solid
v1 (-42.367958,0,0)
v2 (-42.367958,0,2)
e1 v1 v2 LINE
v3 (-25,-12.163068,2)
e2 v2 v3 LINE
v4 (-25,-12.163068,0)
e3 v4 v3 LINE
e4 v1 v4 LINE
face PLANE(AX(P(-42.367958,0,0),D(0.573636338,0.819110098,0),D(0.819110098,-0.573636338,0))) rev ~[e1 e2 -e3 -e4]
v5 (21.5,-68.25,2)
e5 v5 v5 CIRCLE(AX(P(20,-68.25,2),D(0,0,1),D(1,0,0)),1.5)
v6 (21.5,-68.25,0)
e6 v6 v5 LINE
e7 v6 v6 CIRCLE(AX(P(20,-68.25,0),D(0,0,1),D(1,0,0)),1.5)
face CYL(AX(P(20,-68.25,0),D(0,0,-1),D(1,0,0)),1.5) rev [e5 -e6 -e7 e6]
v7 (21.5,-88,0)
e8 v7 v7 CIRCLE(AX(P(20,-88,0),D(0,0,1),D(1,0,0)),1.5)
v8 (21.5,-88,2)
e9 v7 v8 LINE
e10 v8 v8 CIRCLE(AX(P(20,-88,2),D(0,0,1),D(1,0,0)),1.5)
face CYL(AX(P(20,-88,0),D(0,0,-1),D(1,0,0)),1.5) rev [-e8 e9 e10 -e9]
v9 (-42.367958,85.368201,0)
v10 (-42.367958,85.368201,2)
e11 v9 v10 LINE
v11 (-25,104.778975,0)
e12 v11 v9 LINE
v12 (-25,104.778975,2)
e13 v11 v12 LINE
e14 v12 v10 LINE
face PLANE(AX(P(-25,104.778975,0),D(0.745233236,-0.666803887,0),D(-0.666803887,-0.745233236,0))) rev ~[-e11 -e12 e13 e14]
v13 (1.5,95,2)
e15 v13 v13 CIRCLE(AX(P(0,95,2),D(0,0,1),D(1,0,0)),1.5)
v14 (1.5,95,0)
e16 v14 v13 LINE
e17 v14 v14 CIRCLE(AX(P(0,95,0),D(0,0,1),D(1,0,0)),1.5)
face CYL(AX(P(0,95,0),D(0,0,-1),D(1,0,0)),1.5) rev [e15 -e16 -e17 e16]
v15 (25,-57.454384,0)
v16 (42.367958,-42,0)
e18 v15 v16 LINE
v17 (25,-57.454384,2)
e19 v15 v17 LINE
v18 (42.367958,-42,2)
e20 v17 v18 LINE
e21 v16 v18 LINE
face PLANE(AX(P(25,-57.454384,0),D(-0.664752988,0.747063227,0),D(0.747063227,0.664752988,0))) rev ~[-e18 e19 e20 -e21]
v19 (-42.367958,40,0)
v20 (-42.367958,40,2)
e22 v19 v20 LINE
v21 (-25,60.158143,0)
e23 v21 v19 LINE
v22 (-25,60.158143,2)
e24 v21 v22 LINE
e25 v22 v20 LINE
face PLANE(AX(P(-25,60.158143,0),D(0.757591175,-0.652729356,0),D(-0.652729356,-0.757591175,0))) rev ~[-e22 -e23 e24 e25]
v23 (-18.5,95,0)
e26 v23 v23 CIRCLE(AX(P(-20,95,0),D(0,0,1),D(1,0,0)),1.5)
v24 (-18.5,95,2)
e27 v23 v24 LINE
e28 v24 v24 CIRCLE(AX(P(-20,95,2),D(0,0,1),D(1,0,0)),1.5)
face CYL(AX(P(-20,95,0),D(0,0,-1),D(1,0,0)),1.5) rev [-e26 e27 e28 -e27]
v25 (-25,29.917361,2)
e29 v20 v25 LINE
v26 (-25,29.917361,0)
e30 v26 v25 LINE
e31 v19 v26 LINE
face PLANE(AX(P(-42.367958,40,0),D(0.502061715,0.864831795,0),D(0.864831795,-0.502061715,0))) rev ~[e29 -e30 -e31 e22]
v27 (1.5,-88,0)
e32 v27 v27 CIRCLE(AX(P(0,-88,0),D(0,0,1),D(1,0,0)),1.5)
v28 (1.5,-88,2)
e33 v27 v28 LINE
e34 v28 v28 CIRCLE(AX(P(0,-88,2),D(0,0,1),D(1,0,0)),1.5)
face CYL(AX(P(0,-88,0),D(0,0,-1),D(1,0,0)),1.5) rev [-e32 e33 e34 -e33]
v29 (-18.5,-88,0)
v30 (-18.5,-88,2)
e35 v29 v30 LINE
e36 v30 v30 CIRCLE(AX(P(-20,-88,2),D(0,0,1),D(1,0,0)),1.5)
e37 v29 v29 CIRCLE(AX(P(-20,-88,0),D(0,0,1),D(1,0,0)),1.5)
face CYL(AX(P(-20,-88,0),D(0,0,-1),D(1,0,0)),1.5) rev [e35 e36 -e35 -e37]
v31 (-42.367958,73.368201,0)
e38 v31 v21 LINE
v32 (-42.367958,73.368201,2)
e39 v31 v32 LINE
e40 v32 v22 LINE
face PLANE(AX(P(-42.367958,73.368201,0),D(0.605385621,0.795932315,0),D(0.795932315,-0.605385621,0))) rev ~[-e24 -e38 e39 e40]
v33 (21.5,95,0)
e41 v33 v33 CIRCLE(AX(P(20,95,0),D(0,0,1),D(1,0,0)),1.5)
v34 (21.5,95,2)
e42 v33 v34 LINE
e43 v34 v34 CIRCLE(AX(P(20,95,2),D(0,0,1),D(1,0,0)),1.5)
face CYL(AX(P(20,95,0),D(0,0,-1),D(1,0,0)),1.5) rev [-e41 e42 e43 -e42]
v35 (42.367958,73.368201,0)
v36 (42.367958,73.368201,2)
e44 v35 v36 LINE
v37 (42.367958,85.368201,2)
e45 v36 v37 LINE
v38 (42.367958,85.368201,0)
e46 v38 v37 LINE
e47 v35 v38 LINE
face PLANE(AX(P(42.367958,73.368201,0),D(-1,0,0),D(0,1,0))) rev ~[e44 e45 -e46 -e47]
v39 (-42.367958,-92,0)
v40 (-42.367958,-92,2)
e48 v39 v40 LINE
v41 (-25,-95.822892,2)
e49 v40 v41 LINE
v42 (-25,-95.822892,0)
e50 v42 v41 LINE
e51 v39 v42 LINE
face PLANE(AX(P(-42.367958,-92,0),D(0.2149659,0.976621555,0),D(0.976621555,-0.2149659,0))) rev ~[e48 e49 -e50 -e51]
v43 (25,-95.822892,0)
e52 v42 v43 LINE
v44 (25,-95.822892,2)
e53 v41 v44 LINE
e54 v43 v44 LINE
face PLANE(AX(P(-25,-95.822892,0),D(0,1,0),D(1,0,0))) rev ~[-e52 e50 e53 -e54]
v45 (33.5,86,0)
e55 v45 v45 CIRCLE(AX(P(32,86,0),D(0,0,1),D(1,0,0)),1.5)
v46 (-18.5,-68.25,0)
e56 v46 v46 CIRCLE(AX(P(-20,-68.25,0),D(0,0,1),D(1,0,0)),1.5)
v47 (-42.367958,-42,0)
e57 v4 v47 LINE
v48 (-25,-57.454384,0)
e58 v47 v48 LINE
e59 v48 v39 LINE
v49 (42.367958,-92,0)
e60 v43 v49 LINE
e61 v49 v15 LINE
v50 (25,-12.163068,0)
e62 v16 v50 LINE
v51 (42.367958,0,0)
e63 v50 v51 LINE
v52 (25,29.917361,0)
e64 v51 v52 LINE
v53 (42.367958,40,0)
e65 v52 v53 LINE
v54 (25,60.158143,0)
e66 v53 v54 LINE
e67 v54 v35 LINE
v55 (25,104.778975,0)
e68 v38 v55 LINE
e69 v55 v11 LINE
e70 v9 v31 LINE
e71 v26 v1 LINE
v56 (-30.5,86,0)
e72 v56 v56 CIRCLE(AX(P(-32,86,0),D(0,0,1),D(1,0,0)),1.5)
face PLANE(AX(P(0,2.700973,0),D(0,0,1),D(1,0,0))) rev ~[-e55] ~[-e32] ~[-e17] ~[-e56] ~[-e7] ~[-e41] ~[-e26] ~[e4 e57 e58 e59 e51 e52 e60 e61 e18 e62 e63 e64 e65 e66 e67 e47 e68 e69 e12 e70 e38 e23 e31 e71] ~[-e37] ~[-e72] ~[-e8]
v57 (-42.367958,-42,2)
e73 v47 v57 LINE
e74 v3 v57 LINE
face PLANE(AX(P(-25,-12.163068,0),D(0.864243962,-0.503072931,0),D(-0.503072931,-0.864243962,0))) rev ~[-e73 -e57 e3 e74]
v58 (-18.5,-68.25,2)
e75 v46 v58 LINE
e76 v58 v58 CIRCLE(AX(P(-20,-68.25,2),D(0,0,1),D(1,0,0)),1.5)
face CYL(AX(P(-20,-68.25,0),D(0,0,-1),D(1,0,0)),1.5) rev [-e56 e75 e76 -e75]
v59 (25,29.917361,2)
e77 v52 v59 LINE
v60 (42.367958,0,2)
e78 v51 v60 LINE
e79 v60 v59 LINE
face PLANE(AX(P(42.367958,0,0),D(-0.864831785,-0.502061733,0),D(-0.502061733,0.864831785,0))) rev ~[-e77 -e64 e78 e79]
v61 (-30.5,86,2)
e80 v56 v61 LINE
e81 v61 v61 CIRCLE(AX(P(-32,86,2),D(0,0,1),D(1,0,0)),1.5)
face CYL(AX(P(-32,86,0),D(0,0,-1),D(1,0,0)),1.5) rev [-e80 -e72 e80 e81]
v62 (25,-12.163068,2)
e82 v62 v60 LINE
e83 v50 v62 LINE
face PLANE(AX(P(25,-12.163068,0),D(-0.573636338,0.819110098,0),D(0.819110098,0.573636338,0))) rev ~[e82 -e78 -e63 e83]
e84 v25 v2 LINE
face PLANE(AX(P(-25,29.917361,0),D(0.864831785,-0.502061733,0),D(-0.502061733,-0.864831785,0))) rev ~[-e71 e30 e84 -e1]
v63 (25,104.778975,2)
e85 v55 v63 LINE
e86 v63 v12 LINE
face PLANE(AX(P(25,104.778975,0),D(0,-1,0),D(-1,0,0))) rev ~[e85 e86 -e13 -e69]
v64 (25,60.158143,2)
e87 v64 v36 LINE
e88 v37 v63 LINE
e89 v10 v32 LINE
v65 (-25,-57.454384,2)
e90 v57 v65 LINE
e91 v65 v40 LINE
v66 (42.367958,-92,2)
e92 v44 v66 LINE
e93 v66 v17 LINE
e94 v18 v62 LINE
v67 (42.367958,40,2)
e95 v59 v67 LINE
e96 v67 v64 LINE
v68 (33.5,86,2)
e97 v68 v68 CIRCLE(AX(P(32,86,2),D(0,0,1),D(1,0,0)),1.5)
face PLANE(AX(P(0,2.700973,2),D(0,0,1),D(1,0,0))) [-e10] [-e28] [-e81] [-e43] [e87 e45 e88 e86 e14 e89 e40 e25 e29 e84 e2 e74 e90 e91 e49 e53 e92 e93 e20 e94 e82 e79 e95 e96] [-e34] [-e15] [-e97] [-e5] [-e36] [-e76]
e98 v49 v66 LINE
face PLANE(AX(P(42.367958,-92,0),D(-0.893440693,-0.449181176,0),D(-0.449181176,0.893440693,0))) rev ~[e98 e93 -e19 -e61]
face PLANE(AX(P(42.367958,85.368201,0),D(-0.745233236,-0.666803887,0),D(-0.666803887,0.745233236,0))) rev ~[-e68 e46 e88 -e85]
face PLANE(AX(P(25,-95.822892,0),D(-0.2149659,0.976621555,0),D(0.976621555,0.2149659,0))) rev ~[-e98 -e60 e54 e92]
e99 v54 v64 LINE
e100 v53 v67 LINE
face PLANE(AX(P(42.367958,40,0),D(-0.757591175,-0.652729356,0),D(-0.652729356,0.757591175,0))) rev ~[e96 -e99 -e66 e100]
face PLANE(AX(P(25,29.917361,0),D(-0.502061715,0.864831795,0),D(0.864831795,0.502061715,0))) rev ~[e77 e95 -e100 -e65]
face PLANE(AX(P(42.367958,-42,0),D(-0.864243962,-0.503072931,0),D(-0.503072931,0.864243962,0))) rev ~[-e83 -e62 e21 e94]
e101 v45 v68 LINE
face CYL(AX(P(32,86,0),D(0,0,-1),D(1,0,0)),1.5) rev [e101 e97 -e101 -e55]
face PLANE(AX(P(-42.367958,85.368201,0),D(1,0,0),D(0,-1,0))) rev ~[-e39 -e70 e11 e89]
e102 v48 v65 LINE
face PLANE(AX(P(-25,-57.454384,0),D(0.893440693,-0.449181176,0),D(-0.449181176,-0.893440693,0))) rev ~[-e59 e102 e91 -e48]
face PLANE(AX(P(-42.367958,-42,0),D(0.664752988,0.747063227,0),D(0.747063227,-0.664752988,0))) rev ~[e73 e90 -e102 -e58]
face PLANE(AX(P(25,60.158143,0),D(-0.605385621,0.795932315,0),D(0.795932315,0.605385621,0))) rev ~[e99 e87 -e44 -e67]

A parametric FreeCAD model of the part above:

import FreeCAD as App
import Part
import Sketcher
from FreeCAD import Vector
Q = App.Units.Quantity

doc = App.newDocument("Part")
body = doc.addObject("PartDesign::Body", "Body")

sketch1 = doc.addObject("Sketcher::SketchObject", "Sketch")
body.addObject(sketch1)
sketch1.AttachmentSupport = (doc.XY_Plane, [""])
sketch1.MapMode = "FlatFace"
sketch1.addGeometry([
    Part.LineSegment(Vector(-42.4, -92, 0), Vector(-25, -95.8, 0)),
    Part.LineSegment(Vector(-25, -95.8, 0), Vector(25, -95.8, 0)),
    Part.LineSegment(Vector(25, -95.8, 0), Vector(42.4, -92, 0)),
    Part.LineSegment(Vector(42.4, -92, 0), Vector(25, -57.5, 0)),
    Part.LineSegment(Vector(25, -57.5, 0), Vector(42.4, -42, 0)),
    Part.LineSegment(Vector(42.4, -42, 0), Vector(25, -12.2, 0)),
    Part.LineSegment(Vector(25, -12.2, 0), Vector(42.4, 0, 0)),
    Part.LineSegment(Vector(42.4, 0, 0), Vector(25, 29.9, 0)),
    Part.LineSegment(Vector(25, 29.9, 0), Vector(42.4, 40, 0)),
    Part.LineSegment(Vector(42.4, 40, 0), Vector(25, 60.2, 0)),
    Part.LineSegment(Vector(25, 60.2, 0), Vector(42.4, 73.4, 0)),
    Part.LineSegment(Vector(42.4, 73.4, 0), Vector(42.4, 85.4, 0)),
    Part.LineSegment(Vector(42.4, 85.4, 0), Vector(25, 104.8, 0)),
    Part.LineSegment(Vector(25, 104.8, 0), Vector(-25, 104.8, 0)),
    Part.LineSegment(Vector(-25, 104.8, 0), Vector(-42.4, 85.4, 0)),
    Part.LineSegment(Vector(-42.4, 85.4, 0), Vector(-42.4, 73.4, 0)),
    Part.LineSegment(Vector(-42.4, 73.4, 0), Vector(-25, 60.2, 0)),
    Part.LineSegment(Vector(-25, 60.2, 0), Vector(-42.4, 40, 0)),
    Part.LineSegment(Vector(-42.4, 40, 0), Vector(-25, 29.9, 0)),
    Part.LineSegment(Vector(-25, 29.9, 0), Vector(-42.4, 0, 0)),
    Part.LineSegment(Vector(-42.4, 0, 0), Vector(-25, -12.2, 0)),
    Part.LineSegment(Vector(-25, -12.2, 0), Vector(-42.4, -42, 0)),
    Part.LineSegment(Vector(-42.4, -42, 0), Vector(-25, -57.5, 0)),
    Part.LineSegment(Vector(-25, -57.5, 0), Vector(-42.4, -92, 0)),
    Part.Circle(Vector(-20, -88, 0), Vector(0, 0, 1), 1.5),
    Part.Circle(Vector(-20, -68.2, 0), Vector(0, 0, 1), 1.5),
    Part.Circle(Vector(0, -88, 0), Vector(0, 0, 1), 1.5),
    Part.Circle(Vector(20, -88, 0), Vector(0, 0, 1), 1.5),
    Part.Circle(Vector(20, -68.2, 0), Vector(0, 0, 1), 1.5),
    Part.Circle(Vector(-32, 86, 0), Vector(0, 0, 1), 1.5),
    Part.Circle(Vector(-20, 95, 0), Vector(0, 0, 1), 1.5),
    Part.Circle(Vector(0, 95, 0), Vector(0, 0, 1), 1.5),
    Part.Circle(Vector(20, 95, 0), Vector(0, 0, 1), 1.5),
    Part.Circle(Vector(32, 86, 0), Vector(0, 0, 1), 1.5),
], False)
sketch1.addConstraint([
    Sketcher.Constraint("Coincident", 0, 2, 1, 1),
    Sketcher.Constraint("Coincident", 1, 2, 2, 1),
    Sketcher.Constraint("Coincident", 2, 2, 3, 1),
    Sketcher.Constraint("Coincident", 3, 2, 4, 1),
    Sketcher.Constraint("Coincident", 4, 2, 5, 1),
    Sketcher.Constraint("Coincident", 5, 2, 6, 1),
    Sketcher.Constraint("Coincident", 6, 2, 7, 1),
    Sketcher.Constraint("Coincident", 7, 2, 8, 1),
    Sketcher.Constraint("Coincident", 8, 2, 9, 1),
    Sketcher.Constraint("Coincident", 9, 2, 10, 1),
    Sketcher.Constraint("Coincident", 10, 2, 11, 1),
    Sketcher.Constraint("Coincident", 11, 2, 12, 1),
    Sketcher.Constraint("Coincident", 12, 2, 13, 1),
    Sketcher.Constraint("Coincident", 13, 2, 14, 1),
    Sketcher.Constraint("Coincident", 14, 2, 15, 1),
    Sketcher.Constraint("Coincident", 15, 2, 16, 1),
    Sketcher.Constraint("Coincident", 16, 2, 17, 1),
    Sketcher.Constraint("Coincident", 17, 2, 18, 1),
    Sketcher.Constraint("Coincident", 18, 2, 19, 1),
    Sketcher.Constraint("Coincident", 19, 2, 20, 1),
    Sketcher.Constraint("Coincident", 20, 2, 21, 1),
    Sketcher.Constraint("Coincident", 21, 2, 22, 1),
    Sketcher.Constraint("Coincident", 22, 2, 23, 1),
    Sketcher.Constraint("Coincident", 23, 2, 0, 1),
    Sketcher.Constraint("Horizontal", 1),
    Sketcher.Constraint("Vertical", 11),
    Sketcher.Constraint("Horizontal", 13),
    Sketcher.Constraint("Vertical", 15),
    Sketcher.Constraint("Equal", 24, 25),
    Sketcher.Constraint("Equal", 25, 26),
    Sketcher.Constraint("Equal", 26, 27),
    Sketcher.Constraint("Equal", 27, 28),
    Sketcher.Constraint("Equal", 28, 29),
    Sketcher.Constraint("Equal", 29, 30),
    Sketcher.Constraint("Equal", 30, 31),
    Sketcher.Constraint("Equal", 31, 32),
    Sketcher.Constraint("Equal", 32, 33),
    Sketcher.Constraint("Symmetric", 6, 2, 19, 2, -1, 1),
    Sketcher.Constraint("Symmetric", 24, 3, 27, 3, -2),
    Sketcher.Constraint("Symmetric", 25, 3, 28, 3, -2),
    Sketcher.Constraint("Symmetric", 30, 3, 32, 3, -2),
    Sketcher.Constraint("Symmetric", 29, 3, 33, 3, -2),
    Sketcher.Constraint("Symmetric", 11, 2, 14, 2, -2),
    Sketcher.Constraint("Symmetric", 9, 2, 16, 2, -2),
    Sketcher.Constraint("Symmetric", 8, 2, 17, 2, -2),
    Sketcher.Constraint("Symmetric", 7, 2, 18, 2, -2),
    Sketcher.Constraint("Symmetric", 5, 2, 20, 2, -2),
    Sketcher.Constraint("Symmetric", 4, 2, 21, 2, -2),
    Sketcher.Constraint("Symmetric", 3, 2, 22, 2, -2),
    Sketcher.Constraint("Symmetric", 2, 2, 23, 2, -2),
    Sketcher.Constraint("PointOnObject", 26, 3, -2),
    Sketcher.Constraint("PointOnObject", 31, 3, -2),
    Sketcher.Constraint("PointOnObject", 6, 2, -1),
    Sketcher.Constraint("Perpendicular", 7, 8),
    Sketcher.Constraint("Horizontal", 24, 3, 26, 3),
    Sketcher.Constraint("Horizontal", 30, 3, 31, 3),
    Sketcher.Constraint("Horizontal", 10, 2, 15, 2),
    Sketcher.Constraint("Vertical", 24, 3, 25, 3),
    Sketcher.Constraint("Vertical", 25, 3, 30, 3),
    Sketcher.Constraint("Vertical", 1, 2, 3, 2),
    Sketcher.Constraint("Vertical", 2, 2, 4, 2),
    Sketcher.Constraint("Vertical", 3, 2, 5, 2),
    Sketcher.Constraint("Vertical", 4, 2, 6, 2),
    Sketcher.Constraint("Vertical", 5, 2, 7, 2),
    Sketcher.Constraint("Vertical", 6, 2, 8, 2),
    Sketcher.Constraint("Vertical", 7, 2, 9, 2),
    Sketcher.Constraint("Vertical", 8, 2, 10, 2),
    Sketcher.Constraint("Vertical", 9, 2, 12, 2),
    Sketcher.Constraint("Vertical", 0, 2, 13, 2),
    Sketcher.Constraint("Vertical", 13, 2, 16, 2),
    Sketcher.Constraint("Diameter", 24, Q("3 mm")),
    Sketcher.Constraint("DistanceX", 1, 1, 1, 2, Q("50 mm")),
    Sketcher.Constraint("DistanceY", 11, 1, 11, 2, Q("12 mm")),
    Sketcher.Constraint("DistanceX", 24, 3, -1, 1, Q("20 mm")),
    Sketcher.Constraint("DistanceY", 24, 3, -1, 1, Q("88 mm")),
    Sketcher.Constraint("DistanceX", 29, 3, -1, 1, Q("32 mm")),
    Sketcher.Constraint("DistanceY", -1, 1, 29, 3, Q("86 mm")),
    Sketcher.Constraint("DistanceY", -1, 1, 30, 3, Q("95 mm")),
    Sketcher.Constraint("DistanceY", 2, 2, -1, 1, Q("92 mm")),
    Sketcher.Constraint("DistanceY", 4, 2, -1, 1, Q("42 mm")),
    Sketcher.Constraint("DistanceY", -1, 1, 8, 2, Q("40 mm")),
    Sketcher.Constraint("DistanceY", 25, 3, -1, 1, Q("68.25 mm")),
    Sketcher.Constraint("Distance", 10, Q("21.820898 mm")),
    Sketcher.Constraint("DistanceY", -1, 1, 10, 2, Q("73.368201 mm")),
    Sketcher.Constraint("Distance", 3, Q("38.665819 mm")),
    Sketcher.Constraint("Distance", 4, Q("23.248311 mm")),
    Sketcher.Constraint("DistanceY", 0, 2, -1, 1, Q("95.822892 mm")),
    Sketcher.Constraint("DistanceY", 5, 2, -1, 1, Q("12.163068 mm")),
    Sketcher.Constraint("Distance", 12, Q("26.046576 mm")),
])
pad1 = doc.addObject("PartDesign::Pad", "Pad")
body.addObject(pad1)
pad1.Profile = sketch1
pad1.Length = 2

doc.recompute()
